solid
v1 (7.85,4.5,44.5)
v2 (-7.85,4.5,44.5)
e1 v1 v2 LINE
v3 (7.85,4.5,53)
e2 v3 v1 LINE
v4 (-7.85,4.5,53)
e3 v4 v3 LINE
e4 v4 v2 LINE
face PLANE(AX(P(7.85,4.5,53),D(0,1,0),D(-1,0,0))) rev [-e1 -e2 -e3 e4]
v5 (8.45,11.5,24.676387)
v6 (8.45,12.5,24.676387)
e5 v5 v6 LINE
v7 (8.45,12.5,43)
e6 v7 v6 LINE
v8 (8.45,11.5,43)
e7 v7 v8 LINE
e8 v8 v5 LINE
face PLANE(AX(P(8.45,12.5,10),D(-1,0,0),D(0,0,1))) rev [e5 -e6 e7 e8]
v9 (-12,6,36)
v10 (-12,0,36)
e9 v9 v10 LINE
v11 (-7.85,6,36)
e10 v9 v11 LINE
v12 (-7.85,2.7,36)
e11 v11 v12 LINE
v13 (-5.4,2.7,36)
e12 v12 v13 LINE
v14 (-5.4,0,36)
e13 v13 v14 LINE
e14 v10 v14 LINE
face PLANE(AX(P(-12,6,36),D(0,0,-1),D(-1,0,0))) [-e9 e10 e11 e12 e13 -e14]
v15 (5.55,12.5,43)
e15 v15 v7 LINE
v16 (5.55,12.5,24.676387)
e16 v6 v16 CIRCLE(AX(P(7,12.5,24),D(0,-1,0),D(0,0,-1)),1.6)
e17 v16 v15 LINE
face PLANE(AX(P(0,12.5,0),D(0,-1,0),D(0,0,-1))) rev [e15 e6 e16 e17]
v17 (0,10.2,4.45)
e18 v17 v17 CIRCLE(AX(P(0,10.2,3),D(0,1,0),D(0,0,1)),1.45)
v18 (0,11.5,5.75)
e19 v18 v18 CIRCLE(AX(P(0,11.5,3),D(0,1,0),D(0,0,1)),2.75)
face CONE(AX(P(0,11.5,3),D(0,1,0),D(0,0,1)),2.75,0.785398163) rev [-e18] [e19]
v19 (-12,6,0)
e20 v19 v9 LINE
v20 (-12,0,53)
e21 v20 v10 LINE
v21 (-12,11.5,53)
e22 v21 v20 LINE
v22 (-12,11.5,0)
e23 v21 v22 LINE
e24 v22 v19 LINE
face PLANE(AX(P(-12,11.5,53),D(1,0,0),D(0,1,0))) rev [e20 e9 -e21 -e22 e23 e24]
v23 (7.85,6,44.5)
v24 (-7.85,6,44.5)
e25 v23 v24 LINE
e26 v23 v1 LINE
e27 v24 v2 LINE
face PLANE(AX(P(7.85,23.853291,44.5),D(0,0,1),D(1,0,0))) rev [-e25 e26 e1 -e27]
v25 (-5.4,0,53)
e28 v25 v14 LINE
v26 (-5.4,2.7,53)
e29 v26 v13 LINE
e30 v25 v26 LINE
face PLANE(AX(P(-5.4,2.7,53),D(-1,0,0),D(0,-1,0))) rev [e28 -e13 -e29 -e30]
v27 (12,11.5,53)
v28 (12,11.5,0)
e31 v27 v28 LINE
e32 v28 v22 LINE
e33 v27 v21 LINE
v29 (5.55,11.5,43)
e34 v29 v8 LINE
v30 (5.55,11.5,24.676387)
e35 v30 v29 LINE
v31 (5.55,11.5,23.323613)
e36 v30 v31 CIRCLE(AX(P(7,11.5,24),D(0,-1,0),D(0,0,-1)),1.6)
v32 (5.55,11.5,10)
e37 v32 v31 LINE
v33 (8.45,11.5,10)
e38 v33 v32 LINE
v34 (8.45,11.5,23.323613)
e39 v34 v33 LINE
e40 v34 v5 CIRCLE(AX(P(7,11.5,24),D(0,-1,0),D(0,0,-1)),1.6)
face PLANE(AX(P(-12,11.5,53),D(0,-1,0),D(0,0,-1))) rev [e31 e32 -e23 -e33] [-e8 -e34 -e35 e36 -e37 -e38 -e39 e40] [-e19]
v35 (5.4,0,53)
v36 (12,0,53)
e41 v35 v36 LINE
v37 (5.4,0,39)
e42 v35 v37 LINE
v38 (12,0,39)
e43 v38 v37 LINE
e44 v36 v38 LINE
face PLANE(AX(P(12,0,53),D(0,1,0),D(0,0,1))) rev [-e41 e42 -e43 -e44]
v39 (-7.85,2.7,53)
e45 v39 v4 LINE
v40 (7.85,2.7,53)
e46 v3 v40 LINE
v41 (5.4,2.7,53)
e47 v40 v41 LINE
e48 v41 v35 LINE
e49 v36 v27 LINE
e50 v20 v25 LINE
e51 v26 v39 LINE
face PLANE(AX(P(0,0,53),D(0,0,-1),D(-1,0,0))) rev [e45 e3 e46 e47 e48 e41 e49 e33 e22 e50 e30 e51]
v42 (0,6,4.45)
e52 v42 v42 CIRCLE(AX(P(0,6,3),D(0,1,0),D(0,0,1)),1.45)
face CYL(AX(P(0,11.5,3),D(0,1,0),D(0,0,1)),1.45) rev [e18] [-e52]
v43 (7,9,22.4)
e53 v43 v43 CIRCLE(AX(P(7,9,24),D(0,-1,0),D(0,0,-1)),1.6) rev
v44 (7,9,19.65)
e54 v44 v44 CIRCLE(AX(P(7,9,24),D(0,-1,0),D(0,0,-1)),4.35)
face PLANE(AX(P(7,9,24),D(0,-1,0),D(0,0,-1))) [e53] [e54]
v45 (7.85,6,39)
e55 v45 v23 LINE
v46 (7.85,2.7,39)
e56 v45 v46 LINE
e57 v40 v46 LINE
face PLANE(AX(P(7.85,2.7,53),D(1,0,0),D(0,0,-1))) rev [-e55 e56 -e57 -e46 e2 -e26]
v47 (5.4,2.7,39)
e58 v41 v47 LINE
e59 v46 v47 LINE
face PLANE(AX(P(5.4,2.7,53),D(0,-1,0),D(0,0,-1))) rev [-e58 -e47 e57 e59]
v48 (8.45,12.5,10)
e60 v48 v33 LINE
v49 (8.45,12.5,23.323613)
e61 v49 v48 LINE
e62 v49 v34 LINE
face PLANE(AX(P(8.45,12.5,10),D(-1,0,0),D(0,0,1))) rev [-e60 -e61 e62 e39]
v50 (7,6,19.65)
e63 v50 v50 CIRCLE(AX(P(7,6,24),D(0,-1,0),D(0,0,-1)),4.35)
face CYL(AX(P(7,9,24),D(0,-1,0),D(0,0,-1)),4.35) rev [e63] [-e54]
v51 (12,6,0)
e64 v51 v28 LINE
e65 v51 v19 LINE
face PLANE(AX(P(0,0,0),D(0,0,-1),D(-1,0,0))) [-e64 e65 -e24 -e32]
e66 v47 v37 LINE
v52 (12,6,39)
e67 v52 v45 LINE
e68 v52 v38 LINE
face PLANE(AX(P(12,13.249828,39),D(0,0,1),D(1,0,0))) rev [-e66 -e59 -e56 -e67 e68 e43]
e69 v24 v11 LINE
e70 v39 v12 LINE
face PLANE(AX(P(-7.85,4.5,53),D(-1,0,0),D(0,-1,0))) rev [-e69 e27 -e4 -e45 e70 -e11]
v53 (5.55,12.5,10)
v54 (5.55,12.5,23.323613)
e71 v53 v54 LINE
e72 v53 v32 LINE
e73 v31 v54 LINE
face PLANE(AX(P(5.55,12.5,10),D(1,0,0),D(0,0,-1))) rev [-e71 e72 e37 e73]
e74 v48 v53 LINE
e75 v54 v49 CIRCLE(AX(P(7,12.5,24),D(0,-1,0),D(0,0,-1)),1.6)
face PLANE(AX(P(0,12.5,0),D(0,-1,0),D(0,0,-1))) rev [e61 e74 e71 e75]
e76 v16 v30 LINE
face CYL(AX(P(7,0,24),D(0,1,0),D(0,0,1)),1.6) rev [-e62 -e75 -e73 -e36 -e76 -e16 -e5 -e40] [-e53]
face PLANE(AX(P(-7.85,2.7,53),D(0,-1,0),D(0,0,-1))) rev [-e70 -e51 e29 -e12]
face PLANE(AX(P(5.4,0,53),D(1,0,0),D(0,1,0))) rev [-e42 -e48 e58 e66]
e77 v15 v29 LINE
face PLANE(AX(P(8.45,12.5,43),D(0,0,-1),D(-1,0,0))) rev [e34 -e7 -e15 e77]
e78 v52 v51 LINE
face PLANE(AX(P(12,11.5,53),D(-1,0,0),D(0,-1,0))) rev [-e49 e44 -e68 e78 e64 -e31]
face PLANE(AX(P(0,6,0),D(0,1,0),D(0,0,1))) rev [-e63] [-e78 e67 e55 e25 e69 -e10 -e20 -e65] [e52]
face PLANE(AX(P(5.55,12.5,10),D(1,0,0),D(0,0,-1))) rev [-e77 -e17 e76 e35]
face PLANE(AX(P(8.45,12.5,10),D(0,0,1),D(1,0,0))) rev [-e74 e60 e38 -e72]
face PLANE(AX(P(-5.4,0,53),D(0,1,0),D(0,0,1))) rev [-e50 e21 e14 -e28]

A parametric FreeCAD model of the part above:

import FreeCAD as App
import Part
import Sketcher
from FreeCAD import Vector

doc = App.newDocument("Part")
params = doc.addObject("Spreadsheet::Sheet", "Params")
for row, (alias, value) in enumerate([
    ("sketch1_width", "24 mm"),
    ("sketch1_width2", "6.6 mm"),
    ("sketch1_width3", "15.7 mm"),
    ("sketch1_height", "11.5 mm"),
    ("sketch1_height2", "2.7 mm"),
    ("pad1_length", "53 mm"),
    ("sketch2_width", "24 mm"),
    ("sketch2_height", "36 mm"),
    ("pocket1_length", "6 mm"),
    ("sketch3_height", "33 mm"),
    ("sketch3_width", "2.9 mm"),
    ("pad2_length", "1 mm"),
    ("sketch4_diameter", "3.2 mm"),
    ("sketch5_diameter", "8.7 mm"),
    ("pocket3_length", "3 mm"),
    ("sketch6_width", "15.7 mm"),
    ("sketch6_height", "8.5 mm"),
    ("pocket4_length", "1.5 mm"),
    ("sketch7_diameter", "2.9 mm"),
    ("hole_diameter", "2.9 mm"),
    ("hole_csink_diameter", "5.5 mm"),
    ("sketch8_height", "3 mm"),
    ("sketch8_width", "6.6 mm"),
    ("pocket5_length", "6 mm"),
], start=1):
    params.set(f"A{row}", alias)
    params.set(f"B{row}", "=" + value)
    params.setAlias(f"B{row}", alias)

body = doc.addObject("PartDesign::Body", "Body")

sketch1 = body.newObject("Sketcher::SketchObject", "Sketch")
sketch1.AttachmentSupport = (doc.getObject("XY_Plane"), [""])
sketch1.MapMode = "FlatFace"
sketch1.addGeometry([
    Part.LineSegment(Vector(5.4, 0, 0), Vector(12, 0, 0)),
    Part.LineSegment(Vector(12, 0, 0), Vector(12, 11.5, 0)),
    Part.LineSegment(Vector(12, 11.5, 0), Vector(-12, 11.5, 0)),
    Part.LineSegment(Vector(-12, 11.5, 0), Vector(-12, 0, 0)),
    Part.LineSegment(Vector(-12, 0, 0), Vector(-5.4, 0, 0)),
    Part.LineSegment(Vector(-5.4, 0, 0), Vector(-5.4, 2.7, 0)),
    Part.LineSegment(Vector(-5.4, 2.7, 0), Vector(-7.8, 2.7, 0)),
    Part.LineSegment(Vector(-7.8, 2.7, 0), Vector(-7.8, 4.5, 0)),
    Part.LineSegment(Vector(-7.8, 4.5, 0), Vector(7.8, 4.5, 0)),
    Part.LineSegment(Vector(7.8, 4.5, 0), Vector(7.8, 2.7, 0)),
    Part.LineSegment(Vector(7.8, 2.7, 0), Vector(5.4, 2.7, 0)),
    Part.LineSegment(Vector(5.4, 2.7, 0), Vector(5.4, 0, 0)),
], False)
sketch1.addConstraint([
    Sketcher.Constraint("Coincident", 0, 2, 1, 1),
    Sketcher.Constraint("Coincident", 1, 2, 2, 1),
    Sketcher.Constraint("Coincident", 2, 2, 3, 1),
    Sketcher.Constraint("Coincident", 3, 2, 4, 1),
    Sketcher.Constraint("Coincident", 4, 2, 5, 1),
    Sketcher.Constraint("Coincident", 5, 2, 6, 1),
    Sketcher.Constraint("Coincident", 6, 2, 7, 1),
    Sketcher.Constraint("Coincident", 7, 2, 8, 1),
    Sketcher.Constraint("Coincident", 8, 2, 9, 1),
    Sketcher.Constraint("Coincident", 9, 2, 10, 1),
    Sketcher.Constraint("Coincident", 10, 2, 11, 1),
    Sketcher.Constraint("Coincident", 11, 2, 0, 1),
    Sketcher.Constraint("Horizontal", 0),
    Sketcher.Constraint("Vertical", 1),
    Sketcher.Constraint("Horizontal", 2),
    Sketcher.Constraint("Vertical", 3),
    Sketcher.Constraint("Horizontal", 4),
    Sketcher.Constraint("Vertical", 5),
    Sketcher.Constraint("Horizontal", 6),
    Sketcher.Constraint("Vertical", 7),
    Sketcher.Constraint("Horizontal", 8),
    Sketcher.Constraint("Vertical", 9),
    Sketcher.Constraint("Horizontal", 10),
    Sketcher.Constraint("Vertical", 11),
    Sketcher.Constraint("Symmetric", 0, 2, 3, 2, -1, 1),
    Sketcher.Constraint("Symmetric", 6, 2, 9, 2, -2),
    Sketcher.Constraint("Symmetric", 4, 2, 11, 2, -2),
    Sketcher.Constraint("DistanceX", 2, 2, 2, 1, 24.0),
    Sketcher.Constraint("DistanceX", 0, 1, 0, 2, 6.6),
    Sketcher.Constraint("DistanceX", 8, 1, 8, 2, 15.7),
    Sketcher.Constraint("DistanceY", 1, 1, 1, 2, 11.5),
    Sketcher.Constraint("DistanceY", 5, 1, 5, 2, 2.7),
    Sketcher.Constraint("DistanceY", 7, 1, 7, 2, 1.8),
])
sketch1.setExpression("Constraints[27]", "Params.sketch1_width")
sketch1.setExpression("Constraints[28]", "Params.sketch1_width2")
sketch1.setExpression("Constraints[29]", "Params.sketch1_width3")
sketch1.setExpression("Constraints[30]", "Params.sketch1_height")
sketch1.setExpression("Constraints[31]", "Params.sketch1_height2")
pad1 = body.newObject("PartDesign::Pad", "Pad")
pad1.Profile = sketch1
pad1.setExpression("Length", "Params.pad1_length")

sketch2 = body.newObject("Sketcher::SketchObject", "Sketch001")
sketch2.AttachmentSupport = (doc.getObject("XZ_Plane"), [""])
sketch2.MapMode = "FlatFace"
sketch2.addGeometry([
    Part.LineSegment(Vector(-12, 0, 0), Vector(-12, 36, 0)),
    Part.LineSegment(Vector(-12, 36, 0), Vector(12, 36, 0)),
    Part.LineSegment(Vector(12, 36, 0), Vector(12, 0, 0)),
    Part.LineSegment(Vector(12, 0, 0), Vector(-12, 0, 0)),
], False)
sketch2.addConstraint([
    Sketcher.Constraint("Coincident", 0, 2, 1, 1),
    Sketcher.Constraint("Coincident", 1, 2, 2, 1),
    Sketcher.Constraint("Coincident", 2, 2, 3, 1),
    Sketcher.Constraint("Coincident", 3, 2, 0, 1),
    Sketcher.Constraint("Vertical", 0),
    Sketcher.Constraint("Horizontal", 1),
    Sketcher.Constraint("Vertical", 2),
    Sketcher.Constraint("Horizontal", 3),
    Sketcher.Constraint("Symmetric", 2, 2, 3, 2, -1, 1),
    Sketcher.Constraint("DistanceX", 1, 1, 1, 2, 24.0),
    Sketcher.Constraint("DistanceY", 0, 1, 0, 2, 36.0),
])
sketch2.setExpression("Constraints[9]", "Params.sketch2_width")
sketch2.setExpression("Constraints[10]", "Params.sketch2_height")
pocket1 = body.newObject("PartDesign::Pocket", "Pocket")
pocket1.Profile = sketch2
pocket1.setExpression("Length", "Params.pocket1_length")

sketch3 = body.newObject("Sketcher::SketchObject", "Sketch002")
sketch3.AttachmentSupport = (doc.getObject("XZ_Plane"), [""])
sketch3.MapMode = "FlatFace"
sketch3.AttachmentOffset = App.Placement(Vector(0, 0, -11.5), App.Rotation())
sketch3.addGeometry([
    Part.LineSegment(Vector(5.5, 10, 0), Vector(5.5, 43, 0)),
    Part.LineSegment(Vector(5.5, 43, 0), Vector(8.4, 43, 0)),
    Part.LineSegment(Vector(8.4, 43, 0), Vector(8.4, 10, 0)),
    Part.LineSegment(Vector(8.4, 10, 0), Vector(5.5, 10, 0)),
], False)
sketch3.addConstraint([
    Sketcher.Constraint("Coincident", 0, 2, 1, 1),
    Sketcher.Constraint("Coincident", 1, 2, 2, 1),
    Sketcher.Constraint("Coincident", 2, 2, 3, 1),
    Sketcher.Constraint("Coincident", 3, 2, 0, 1),
    Sketcher.Constraint("Vertical", 0),
    Sketcher.Constraint("Horizontal", 1),
    Sketcher.Constraint("Vertical", 2),
    Sketcher.Constraint("Horizontal", 3),
    Sketcher.Constraint("DistanceY", 0, 1, 0, 2, 33.0),
    Sketcher.Constraint("DistanceX", 1, 1, 1, 2, 2.9),
    Sketcher.Constraint("DistanceY", -1, 1, 0, 2, 43.0),
    Sketcher.Constraint("DistanceX", -1, 1, 0, 2, 5.55),
])
sketch3.setExpression("Constraints[8]", "Params.sketch3_height")
sketch3.setExpression("Constraints[9]", "Params.sketch3_width")
pad2 = body.newObject("PartDesign::Pad", "Pad001")
pad2.Profile = sketch3
pad2.setExpression("Length", "Params.pad2_length")
pad2.Reversed = True

sketch4 = body.newObject("Sketcher::SketchObject", "Sketch003")
sketch4.AttachmentSupport = (doc.getObject("XZ_Plane"), [""])
sketch4.MapMode = "FlatFace"
sketch4.AttachmentOffset = App.Placement(Vector(0, 0, -12.5), App.Rotation())
sketch4.addGeometry(Part.Circle(Vector(7, 24, 0), Vector(0, 0, 1), 1.6), False)
sketch4.addConstraint([
    Sketcher.Constraint("Diameter", 0, 3.2),
    Sketcher.Constraint("DistanceX", -1, 1, 0, 3, 7.0),
    Sketcher.Constraint("DistanceY", -1, 1, 0, 3, 24.0),
])
sketch4.setExpression("Constraints[0]", "Params.sketch4_diameter")
pocket2 = body.newObject("PartDesign::Pocket", "Pocket001")
pocket2.Profile = sketch4
pocket2.Type = "ThroughAll"
pocket2.Reversed = True

sketch5 = body.newObject("Sketcher::SketchObject", "Sketch004")
sketch5.AttachmentSupport = (doc.getObject("XZ_Plane"), [""])
sketch5.MapMode = "FlatFace"
sketch5.AttachmentOffset = App.Placement(Vector(0, 0, -6), App.Rotation())
sketch5.addGeometry(Part.Circle(Vector(7, 24, 0), Vector(0, 0, 1), 4.3), False)
sketch5.addConstraint([
    Sketcher.Constraint("Diameter", 0, 8.7),
    Sketcher.Constraint("DistanceX", -1, 1, 0, 3, 7.0),
    Sketcher.Constraint("DistanceY", -1, 1, 0, 3, 24.0),
])
sketch5.setExpression("Constraints[0]", "Params.sketch5_diameter")
pocket3 = body.newObject("PartDesign::Pocket", "Pocket002")
pocket3.Profile = sketch5
pocket3.setExpression("Length", "Params.pocket3_length")

sketch6 = body.newObject("Sketcher::SketchObject", "Sketch005")
sketch6.AttachmentSupport = (doc.getObject("XZ_Plane"), [""])
sketch6.MapMode = "FlatFace"
sketch6.AttachmentOffset = App.Placement(Vector(0, 0, -4.5), App.Rotation())
sketch6.addGeometry([
    Part.LineSegment(Vector(-8, 44, 0), Vector(-8, 36, 0)),
    Part.LineSegment(Vector(-8, 36, 0), Vector(8, 36, 0)),
    Part.LineSegment(Vector(8, 36, 0), Vector(8, 44, 0)),
    Part.LineSegment(Vector(8, 44, 0), Vector(-8, 44, 0)),
], False)
sketch6.addConstraint([
    Sketcher.Constraint("Coincident", 0, 2, 1, 1),
    Sketcher.Constraint("Coincident", 1, 2, 2, 1),
    Sketcher.Constraint("Coincident", 2, 2, 3, 1),
    Sketcher.Constraint("Coincident", 3, 2, 0, 1),
    Sketcher.Constraint("Vertical", 0),
    Sketcher.Constraint("Horizontal", 1),
    Sketcher.Constraint("Vertical", 2),
    Sketcher.Constraint("Horizontal", 3),
    Sketcher.Constraint("DistanceX", 1, 1, 1, 2, 15.7),
    Sketcher.Constraint("DistanceY", 0, 2, 0, 1, 8.5),
    Sketcher.Constraint("DistanceY", -1, 1, 0, 2, 36.0),
    Sketcher.Constraint("DistanceX", 0, 2, -1, 1, 7.85),
])
sketch6.setExpression("Constraints[8]", "Params.sketch6_width")
sketch6.setExpression("Constraints[9]", "Params.sketch6_height")
pocket4 = body.newObject("PartDesign::Pocket", "Pocket003")
pocket4.Profile = sketch6
pocket4.setExpression("Length", "Params.pocket4_length")

sketch7 = body.newObject("Sketcher::SketchObject", "Sketch006")
sketch7.AttachmentSupport = (doc.getObject("XZ_Plane"), [""])
sketch7.MapMode = "FlatFace"
sketch7.AttachmentOffset = App.Placement(Vector(0, 0, -11.5), App.Rotation())
sketch7.addGeometry(Part.Circle(Vector(0, 3, 0), Vector(0, 0, 1), 1.4), False)
sketch7.addConstraint([
    Sketcher.Constraint("PointOnObject", 0, 3, -2),
    Sketcher.Constraint("Diameter", 0, 2.9),
    Sketcher.Constraint("DistanceY", -1, 1, 0, 3, 3.0),
])
sketch7.setExpression("Constraints[1]", "Params.sketch7_diameter")
doc.recompute()
hole = body.newObject("PartDesign::Hole", "Hole")
hole.Profile = sketch7
hole.ThreadType = "None"
hole.setExpression("Diameter", "Params.hole_diameter")
hole.DepthType = "ThroughAll"
hole.HoleCutType = "Countersink"
hole.setExpression("HoleCutDiameter", "Params.hole_csink_diameter")
hole.HoleCutCountersinkAngle = 90
hole.Reversed = True

sketch8 = body.newObject("Sketcher::SketchObject", "Sketch007")
sketch8.AttachmentSupport = (doc.getObject("XZ_Plane"), [""])
sketch8.MapMode = "FlatFace"
sketch8.addGeometry([
    Part.LineSegment(Vector(12, 36, 0), Vector(12, 39, 0)),
    Part.LineSegment(Vector(12, 39, 0), Vector(5.4, 39, 0)),
    Part.LineSegment(Vector(5.4, 39, 0), Vector(5.4, 36, 0)),
    Part.LineSegment(Vector(5.4, 36, 0), Vector(12, 36, 0)),
], False)
sketch8.addConstraint([
    Sketcher.Constraint("Coincident", 0, 2, 1, 1),
    Sketcher.Constraint("Coincident", 1, 2, 2, 1),
    Sketcher.Constraint("Coincident", 2, 2, 3, 1),
    Sketcher.Constraint("Coincident", 3, 2, 0, 1),
    Sketcher.Constraint("Vertical", 0),
    Sketcher.Constraint("Horizontal", 1),
    Sketcher.Constraint("Vertical", 2),
    Sketcher.Constraint("Horizontal", 3),
    Sketcher.Constraint("DistanceY", 0, 1, 0, 2, 3.0),
    Sketcher.Constraint("DistanceX", 1, 2, 1, 1, 6.6),
    Sketcher.Constraint("DistanceX", -1, 1, 0, 2, 12.0),
    Sketcher.Constraint("DistanceY", -1, 1, 0, 2, 39.0),
])
sketch8.setExpression("Constraints[8]", "Params.sketch8_height")
sketch8.setExpression("Constraints[9]", "Params.sketch8_width")
pocket5 = body.newObject("PartDesign::Pocket", "Pocket004")
pocket5.Profile = sketch8
pocket5.setExpression("Length", "Params.pocket5_length")

doc.recompute()
